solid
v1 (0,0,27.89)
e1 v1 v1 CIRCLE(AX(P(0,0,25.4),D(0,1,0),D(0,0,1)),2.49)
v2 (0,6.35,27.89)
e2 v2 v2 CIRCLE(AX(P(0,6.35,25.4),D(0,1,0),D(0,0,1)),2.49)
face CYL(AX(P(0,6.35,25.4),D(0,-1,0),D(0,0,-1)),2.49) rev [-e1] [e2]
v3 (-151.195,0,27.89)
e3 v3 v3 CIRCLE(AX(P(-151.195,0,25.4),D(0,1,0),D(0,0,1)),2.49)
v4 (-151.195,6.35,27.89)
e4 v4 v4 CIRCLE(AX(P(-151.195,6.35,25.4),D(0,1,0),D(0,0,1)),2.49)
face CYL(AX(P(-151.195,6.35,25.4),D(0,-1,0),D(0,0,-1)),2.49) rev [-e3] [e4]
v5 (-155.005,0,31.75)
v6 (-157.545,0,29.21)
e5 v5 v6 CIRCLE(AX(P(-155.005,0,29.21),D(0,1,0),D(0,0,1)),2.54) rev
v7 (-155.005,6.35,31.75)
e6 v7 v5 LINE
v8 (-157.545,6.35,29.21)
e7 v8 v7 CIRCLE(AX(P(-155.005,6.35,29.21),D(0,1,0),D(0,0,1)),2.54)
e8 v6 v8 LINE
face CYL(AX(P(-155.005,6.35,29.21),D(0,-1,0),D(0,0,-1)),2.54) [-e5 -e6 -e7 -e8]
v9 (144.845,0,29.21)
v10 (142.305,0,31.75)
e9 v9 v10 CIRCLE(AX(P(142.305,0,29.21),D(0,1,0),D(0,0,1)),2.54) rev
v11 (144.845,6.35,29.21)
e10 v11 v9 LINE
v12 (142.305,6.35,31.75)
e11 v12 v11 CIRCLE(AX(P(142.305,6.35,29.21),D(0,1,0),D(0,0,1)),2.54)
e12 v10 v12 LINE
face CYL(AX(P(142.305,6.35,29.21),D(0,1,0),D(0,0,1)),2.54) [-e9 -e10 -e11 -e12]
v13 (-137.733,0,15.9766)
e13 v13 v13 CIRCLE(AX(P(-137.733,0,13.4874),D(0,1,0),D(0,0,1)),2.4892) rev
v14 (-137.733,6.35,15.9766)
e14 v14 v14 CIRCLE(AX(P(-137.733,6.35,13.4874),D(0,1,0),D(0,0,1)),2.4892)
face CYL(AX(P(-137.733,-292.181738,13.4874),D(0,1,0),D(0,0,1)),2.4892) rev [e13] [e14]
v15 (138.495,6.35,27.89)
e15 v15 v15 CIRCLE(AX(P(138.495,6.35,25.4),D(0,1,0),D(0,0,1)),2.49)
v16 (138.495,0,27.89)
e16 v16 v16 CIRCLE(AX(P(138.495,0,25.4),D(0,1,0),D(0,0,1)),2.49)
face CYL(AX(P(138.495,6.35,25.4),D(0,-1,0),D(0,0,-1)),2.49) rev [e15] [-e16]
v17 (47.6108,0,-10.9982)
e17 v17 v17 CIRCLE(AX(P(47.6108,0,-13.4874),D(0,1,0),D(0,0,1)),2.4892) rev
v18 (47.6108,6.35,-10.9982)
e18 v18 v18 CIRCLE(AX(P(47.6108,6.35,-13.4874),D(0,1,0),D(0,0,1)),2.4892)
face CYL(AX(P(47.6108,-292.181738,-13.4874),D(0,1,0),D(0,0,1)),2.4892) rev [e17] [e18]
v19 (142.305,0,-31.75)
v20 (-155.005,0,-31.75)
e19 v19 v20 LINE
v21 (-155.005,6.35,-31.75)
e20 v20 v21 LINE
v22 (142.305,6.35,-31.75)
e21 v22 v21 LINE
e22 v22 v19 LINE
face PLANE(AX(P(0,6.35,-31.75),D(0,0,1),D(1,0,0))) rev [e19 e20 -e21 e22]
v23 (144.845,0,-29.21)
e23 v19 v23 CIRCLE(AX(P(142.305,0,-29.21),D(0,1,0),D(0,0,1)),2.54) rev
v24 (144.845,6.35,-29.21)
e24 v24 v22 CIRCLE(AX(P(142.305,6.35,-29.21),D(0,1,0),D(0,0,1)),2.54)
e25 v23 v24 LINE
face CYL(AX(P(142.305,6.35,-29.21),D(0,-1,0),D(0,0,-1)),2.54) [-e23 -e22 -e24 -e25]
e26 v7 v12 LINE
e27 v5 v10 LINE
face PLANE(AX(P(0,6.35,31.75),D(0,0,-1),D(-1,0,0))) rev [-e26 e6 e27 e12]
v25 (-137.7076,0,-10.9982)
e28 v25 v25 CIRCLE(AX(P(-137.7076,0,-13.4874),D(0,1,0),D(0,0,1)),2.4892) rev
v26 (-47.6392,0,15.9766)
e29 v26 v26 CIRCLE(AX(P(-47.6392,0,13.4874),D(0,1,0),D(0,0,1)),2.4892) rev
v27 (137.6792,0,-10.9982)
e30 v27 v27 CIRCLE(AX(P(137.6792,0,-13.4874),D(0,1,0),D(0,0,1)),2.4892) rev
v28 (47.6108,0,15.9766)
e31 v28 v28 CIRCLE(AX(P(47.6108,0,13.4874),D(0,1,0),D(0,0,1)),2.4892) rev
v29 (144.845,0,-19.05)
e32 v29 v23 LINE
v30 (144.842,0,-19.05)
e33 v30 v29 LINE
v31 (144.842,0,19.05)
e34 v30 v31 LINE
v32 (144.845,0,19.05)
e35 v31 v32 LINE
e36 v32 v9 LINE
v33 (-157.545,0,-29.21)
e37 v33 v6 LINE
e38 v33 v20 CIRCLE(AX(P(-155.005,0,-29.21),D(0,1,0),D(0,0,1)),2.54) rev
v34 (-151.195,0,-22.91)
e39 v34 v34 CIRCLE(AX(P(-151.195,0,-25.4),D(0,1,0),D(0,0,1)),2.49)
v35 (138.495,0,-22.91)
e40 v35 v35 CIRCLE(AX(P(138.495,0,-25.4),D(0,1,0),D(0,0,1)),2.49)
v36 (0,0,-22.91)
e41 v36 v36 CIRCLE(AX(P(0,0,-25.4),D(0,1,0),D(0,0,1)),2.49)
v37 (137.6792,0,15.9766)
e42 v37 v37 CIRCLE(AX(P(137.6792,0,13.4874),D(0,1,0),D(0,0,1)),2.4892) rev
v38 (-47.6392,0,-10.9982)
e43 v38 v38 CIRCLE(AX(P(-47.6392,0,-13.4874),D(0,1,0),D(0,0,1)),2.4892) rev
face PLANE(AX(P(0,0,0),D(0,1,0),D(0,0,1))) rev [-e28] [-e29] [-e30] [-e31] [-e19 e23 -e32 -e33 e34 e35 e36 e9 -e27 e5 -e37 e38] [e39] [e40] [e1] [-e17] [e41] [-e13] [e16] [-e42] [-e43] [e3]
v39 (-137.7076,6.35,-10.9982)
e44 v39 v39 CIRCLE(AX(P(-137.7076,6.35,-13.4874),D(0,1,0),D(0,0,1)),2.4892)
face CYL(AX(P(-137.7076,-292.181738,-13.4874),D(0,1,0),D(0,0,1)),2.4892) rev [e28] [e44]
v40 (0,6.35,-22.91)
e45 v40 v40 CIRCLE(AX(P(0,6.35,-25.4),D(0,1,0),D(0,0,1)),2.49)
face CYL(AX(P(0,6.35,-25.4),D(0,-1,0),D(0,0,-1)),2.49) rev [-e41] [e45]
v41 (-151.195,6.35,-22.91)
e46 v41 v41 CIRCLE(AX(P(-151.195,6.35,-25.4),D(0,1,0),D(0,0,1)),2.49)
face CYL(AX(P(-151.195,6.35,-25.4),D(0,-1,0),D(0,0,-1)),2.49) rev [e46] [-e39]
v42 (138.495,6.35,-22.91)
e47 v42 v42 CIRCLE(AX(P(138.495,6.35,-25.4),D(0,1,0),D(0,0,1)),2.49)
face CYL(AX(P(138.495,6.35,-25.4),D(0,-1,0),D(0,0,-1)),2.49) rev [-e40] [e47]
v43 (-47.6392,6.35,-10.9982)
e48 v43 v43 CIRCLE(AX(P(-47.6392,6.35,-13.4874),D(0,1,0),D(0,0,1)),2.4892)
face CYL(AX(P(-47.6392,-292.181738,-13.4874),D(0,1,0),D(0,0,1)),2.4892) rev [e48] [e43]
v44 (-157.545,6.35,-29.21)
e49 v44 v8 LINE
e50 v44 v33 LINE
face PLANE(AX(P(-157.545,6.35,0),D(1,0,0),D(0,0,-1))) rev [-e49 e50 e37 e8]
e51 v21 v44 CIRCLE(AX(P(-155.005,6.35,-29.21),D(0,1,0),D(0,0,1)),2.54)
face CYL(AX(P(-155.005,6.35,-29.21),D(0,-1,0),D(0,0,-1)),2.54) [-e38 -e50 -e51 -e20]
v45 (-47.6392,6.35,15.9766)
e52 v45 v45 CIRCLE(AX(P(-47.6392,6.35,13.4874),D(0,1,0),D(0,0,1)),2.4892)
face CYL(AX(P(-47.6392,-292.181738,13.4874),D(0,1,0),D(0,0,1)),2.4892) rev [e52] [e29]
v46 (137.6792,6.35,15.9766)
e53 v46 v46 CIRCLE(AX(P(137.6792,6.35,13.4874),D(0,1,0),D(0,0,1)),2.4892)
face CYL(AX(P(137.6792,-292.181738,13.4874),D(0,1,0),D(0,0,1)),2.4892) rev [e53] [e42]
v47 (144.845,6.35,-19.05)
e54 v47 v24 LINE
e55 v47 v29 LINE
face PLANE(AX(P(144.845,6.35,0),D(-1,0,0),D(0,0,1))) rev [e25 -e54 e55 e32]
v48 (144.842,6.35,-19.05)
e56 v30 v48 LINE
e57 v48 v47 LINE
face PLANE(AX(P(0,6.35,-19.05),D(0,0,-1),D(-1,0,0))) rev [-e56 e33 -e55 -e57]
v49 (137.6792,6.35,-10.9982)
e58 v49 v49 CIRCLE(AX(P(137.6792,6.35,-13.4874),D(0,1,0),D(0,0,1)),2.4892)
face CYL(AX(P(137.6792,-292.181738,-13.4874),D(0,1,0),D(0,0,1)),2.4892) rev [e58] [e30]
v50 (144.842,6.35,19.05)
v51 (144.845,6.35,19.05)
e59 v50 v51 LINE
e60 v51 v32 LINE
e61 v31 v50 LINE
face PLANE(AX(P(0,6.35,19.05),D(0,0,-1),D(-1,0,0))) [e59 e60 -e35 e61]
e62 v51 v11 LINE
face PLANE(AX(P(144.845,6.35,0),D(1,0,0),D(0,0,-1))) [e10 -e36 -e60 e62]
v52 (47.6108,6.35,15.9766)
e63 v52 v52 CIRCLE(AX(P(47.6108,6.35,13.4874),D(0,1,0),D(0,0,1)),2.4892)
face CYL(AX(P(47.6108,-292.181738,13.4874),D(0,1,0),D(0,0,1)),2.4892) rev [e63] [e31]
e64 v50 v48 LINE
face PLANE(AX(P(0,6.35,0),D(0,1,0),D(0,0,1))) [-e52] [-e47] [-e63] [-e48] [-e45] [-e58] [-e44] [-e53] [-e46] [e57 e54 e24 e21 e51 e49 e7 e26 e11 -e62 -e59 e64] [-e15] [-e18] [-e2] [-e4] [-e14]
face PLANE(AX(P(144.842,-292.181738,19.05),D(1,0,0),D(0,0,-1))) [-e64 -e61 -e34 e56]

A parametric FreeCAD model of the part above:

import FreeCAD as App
import Part
import Sketcher

V = App.Vector
Q = App.Units.Quantity


def edges_at(feature, points):
    """Names of the edges that pass closest to the given points."""
    edges = feature.Shape.Edges
    near = lambda p: min(range(len(edges)), key=lambda i: edges[i].distToShape(Part.Vertex(*p))[0])
    return sorted({f"Edge{near(p) + 1}" for p in points})

doc = App.newDocument("Part")
body = doc.addObject("PartDesign::Body", "Body")

# Sketch on XZ plane
sketch1 = body.newObject("Sketcher::SketchObject", "Sketch")
sketch1.AttachmentSupport = (doc.getObject("XZ_Plane"), [""])
sketch1.MapMode = "FlatFace"
sketch1.addGeometry(Part.LineSegment(V(144.845, 31.75, 0), V(144.845, 19.05, 0)), False)
sketch1.addGeometry(Part.LineSegment(V(144.845, 19.05, 0), V(-144.845, 19.05, 0)), False)
sketch1.addGeometry(Part.LineSegment(V(-144.845, 19.05, 0), V(-144.845, -19.05, 0)), False)
sketch1.addGeometry(Part.LineSegment(V(-144.845, -19.05, 0), V(144.845, -19.05, 0)), False)
sketch1.addGeometry(Part.LineSegment(V(144.845, -19.05, 0), V(144.845, -31.75, 0)), False)
sketch1.addGeometry(Part.LineSegment(V(144.845, -31.75, 0), V(-157.545, -31.75, 0)), False)
sketch1.addGeometry(Part.LineSegment(V(-157.545, -31.75, 0), V(-157.545, 31.75, 0)), False)
sketch1.addGeometry(Part.LineSegment(V(-157.545, 31.75, 0), V(144.845, 31.75, 0)), False)
sketch1.addGeometry(Part.Circle(V(0, 25.4, 0), V(0, 0, 1), 2.49), False)
sketch1.addGeometry(Part.Circle(V(138.495, 25.4, 0), V(0, 0, 1), 2.49), False)
sketch1.addGeometry(Part.Circle(V(-151.195, -25.4, 0), V(0, 0, 1), 2.49), False)
sketch1.addGeometry(Part.Circle(V(-151.195, 25.4, 0), V(0, 0, 1), 2.49), False)
sketch1.addGeometry(Part.Circle(V(138.495, -25.4, 0), V(0, 0, 1), 2.49), False)
sketch1.addGeometry(Part.Circle(V(0, -25.4, 0), V(0, 0, 1), 2.49), False)
sketch1.addConstraint(Sketcher.Constraint("Coincident", 0, 2, 1, 1))
sketch1.addConstraint(Sketcher.Constraint("Coincident", 1, 2, 2, 1))
sketch1.addConstraint(Sketcher.Constraint("Coincident", 2, 2, 3, 1))
sketch1.addConstraint(Sketcher.Constraint("Coincident", 3, 2, 4, 1))
sketch1.addConstraint(Sketcher.Constraint("Coincident", 4, 2, 5, 1))
sketch1.addConstraint(Sketcher.Constraint("Coincident", 5, 2, 6, 1))
sketch1.addConstraint(Sketcher.Constraint("Coincident", 6, 2, 7, 1))
sketch1.addConstraint(Sketcher.Constraint("Coincident", 7, 2, 0, 1))
sketch1.addConstraint(Sketcher.Constraint("Vertical", 0))
sketch1.addConstraint(Sketcher.Constraint("Horizontal", 1))
sketch1.addConstraint(Sketcher.Constraint("Vertical", 2))
sketch1.addConstraint(Sketcher.Constraint("Horizontal", 3))
sketch1.addConstraint(Sketcher.Constraint("Vertical", 4))
sketch1.addConstraint(Sketcher.Constraint("Horizontal", 5))
sketch1.addConstraint(Sketcher.Constraint("Vertical", 6))
sketch1.addConstraint(Sketcher.Constraint("Horizontal", 7))
sketch1.addConstraint(Sketcher.Constraint("Equal", 8, 9))
sketch1.addConstraint(Sketcher.Constraint("Equal", 9, 10))
sketch1.addConstraint(Sketcher.Constraint("Equal", 10, 11))
sketch1.addConstraint(Sketcher.Constraint("Equal", 11, 12))
sketch1.addConstraint(Sketcher.Constraint("Equal", 12, 13))
sketch1.addConstraint(Sketcher.Constraint("Symmetric", 8, 3, 13, 3, -1, 1))
sketch1.addConstraint(Sketcher.Constraint("Symmetric", 0, 2, 2, 2, -1, 1))
sketch1.addConstraint(Sketcher.Constraint("Symmetric", 10, 3, 11, 3, -1))
sketch1.addConstraint(Sketcher.Constraint("Symmetric", 9, 3, 12, 3, -1))
sketch1.addConstraint(Sketcher.Constraint("Symmetric", 4, 2, 7, 2, -1))
sketch1.addConstraint(Sketcher.Constraint("PointOnObject", 8, 3, -2))
sketch1.addConstraint(Sketcher.Constraint("Horizontal", 8, 3, 9, 3))
sketch1.addConstraint(Sketcher.Constraint("Horizontal", 9, 3, 11, 3))
sketch1.addConstraint(Sketcher.Constraint("DistanceY", 0, 2, 0, 1, Q("0.5 in")))
sketch1.addConstraint(Sketcher.Constraint("DistanceY", 2, 2, 2, 1, Q("1.5 in")))
sketch1.addConstraint(Sketcher.Constraint("DistanceY", -1, 1, 8, 3, Q("1 in")))
sketch1.addConstraint(Sketcher.Constraint("DistanceX", 5, 2, 2, 2, Q("0.5 in")))
sketch1.addConstraint(Sketcher.Constraint("Diameter", 8, 4.98))
sketch1.addConstraint(Sketcher.Constraint("DistanceX", 9, 3, 0, 2, Q("0.25 in")))
sketch1.addConstraint(Sketcher.Constraint("DistanceX", 11, 3, 1, 2, Q("0.25 in")))
sketch1.addConstraint(Sketcher.Constraint("DistanceX", 1, 2, 1, 1, 289.69))
pad1 = body.newObject("PartDesign::Pad", "Pad")
pad1.Profile = sketch1
pad1.Length = Q("0.25 in")
pad1.Reversed = True
doc.recompute()

fillet = body.newObject("PartDesign::Fillet", "Fillet")
fillet.Base = (pad1, edges_at(pad1, [
    (144.845, 3.175, 31.75),
    (-157.545, 3.175, 31.75),
    (-157.545, 3.175, -31.75),
    (144.845, 3.175, -31.75),
]))
fillet.Radius = Q("0.1 in")

# Sketch on XZ plane
sketch2 = body.newObject("Sketcher::SketchObject", "Sketch001")
sketch2.AttachmentSupport = (doc.getObject("XZ_Plane"), [""])
sketch2.MapMode = "FlatFace"
sketch2.AttachmentOffset = App.Placement(V(0, 0, -0.25 * 25.4), App.Rotation())
sketch2.addGeometry(Part.LineSegment(V(-144.845, -19.05, 0), V(-144.845, 19.05, 0)), False)
sketch2.addGeometry(Part.LineSegment(V(-144.845, 19.05, 0), V(144.842, 19.05, 0)), False)
sketch2.addGeometry(Part.LineSegment(V(144.842, 19.05, 0), V(144.842, -19.05, 0)), False)
sketch2.addGeometry(Part.LineSegment(V(144.842, -19.05, 0), V(-144.845, -19.05, 0)), False)
sketch2.addGeometry(Part.Circle(V(-137.733, 13.4874, 0), V(0, 0, 1), 2.4892), False)
sketch2.addGeometry(Part.Circle(V(-47.6392, 13.4874, 0), V(0, 0, 1), 2.4892), False)
sketch2.addGeometry(Part.Circle(V(47.6108, 13.4874, 0), V(0, 0, 1), 2.4892), False)
sketch2.addGeometry(Part.Circle(V(137.6792, 13.4874, 0), V(0, 0, 1), 2.4892), False)
sketch2.addGeometry(Part.Circle(V(-137.7076, -13.4874, 0), V(0, 0, 1), 2.4892), False)
sketch2.addGeometry(Part.Circle(V(-47.6392, -13.4874, 0), V(0, 0, 1), 2.4892), False)
sketch2.addGeometry(Part.Circle(V(47.6108, -13.4874, 0), V(0, 0, 1), 2.4892), False)
sketch2.addGeometry(Part.Circle(V(137.6792, -13.4874, 0), V(0, 0, 1), 2.4892), False)
sketch2.addConstraint(Sketcher.Constraint("Coincident", 0, 2, 1, 1))
sketch2.addConstraint(Sketcher.Constraint("Coincident", 1, 2, 2, 1))
sketch2.addConstraint(Sketcher.Constraint("Coincident", 2, 2, 3, 1))
sketch2.addConstraint(Sketcher.Constraint("Coincident", 3, 2, 0, 1))
sketch2.addConstraint(Sketcher.Constraint("Vertical", 0))
sketch2.addConstraint(Sketcher.Constraint("Horizontal", 1))
sketch2.addConstraint(Sketcher.Constraint("Vertical", 2))
sketch2.addConstraint(Sketcher.Constraint("Horizontal", 3))
sketch2.addConstraint(Sketcher.Constraint("Equal", 4, 5))
sketch2.addConstraint(Sketcher.Constraint("Equal", 5, 6))
sketch2.addConstraint(Sketcher.Constraint("Equal", 6, 7))
sketch2.addConstraint(Sketcher.Constraint("Equal", 7, 8))
sketch2.addConstraint(Sketcher.Constraint("Equal", 8, 9))
sketch2.addConstraint(Sketcher.Constraint("Equal", 9, 10))
sketch2.addConstraint(Sketcher.Constraint("Equal", 10, 11))
sketch2.addConstraint(Sketcher.Constraint("Symmetric", 5, 3, 9, 3, -1))
sketch2.addConstraint(Sketcher.Constraint("Symmetric", 6, 3, 10, 3, -1))
sketch2.addConstraint(Sketcher.Constraint("Symmetric", 7, 3, 11, 3, -1))
sketch2.addConstraint(Sketcher.Constraint("Horizontal", 4, 3, 5, 3))
sketch2.addConstraint(Sketcher.Constraint("Horizontal", 5, 3, 6, 3))
sketch2.addConstraint(Sketcher.Constraint("Horizontal", 6, 3, 7, 3))
sketch2.addConstraint(Sketcher.Constraint("Horizontal", 8, 3, 9, 3))
sketch2.addConstraint(Sketcher.Constraint("Diameter", 4, Q("0.196 in")))
sketch2.addConstraint(Sketcher.Constraint("DistanceY", 0, 1, 0, 2, Q("1.5 in")))
sketch2.addConstraint(Sketcher.Constraint("DistanceX", 1, 1, 1, 2, Q("11.405 in")))
sketch2.addConstraint(Sketcher.Constraint("DistanceY", -1, 1, 0, 2, Q("0.75 in")))
sketch2.addConstraint(Sketcher.Constraint("DistanceX", 5, 3, 6, 3, Q("3.75 in")))
sketch2.addConstraint(Sketcher.Constraint("DistanceX", 0, 2, 4, 3, Q("0.28 in")))
sketch2.addConstraint(Sketcher.Constraint("DistanceY", -1, 1, 4, 3, Q("0.531 in")))
sketch2.addConstraint(Sketcher.Constraint("DistanceX", 4, 3, 5, 3, Q("3.547 in")))
sketch2.addConstraint(Sketcher.Constraint("DistanceX", 6, 3, 7, 3, Q("3.546 in")))
sketch2.addConstraint(Sketcher.Constraint("DistanceX", 4, 3, 8, 3, Q("0.001 in")))
sketch2.addConstraint(Sketcher.Constraint("DistanceX", 4, 3, -1, 1, 137.733))
pad2 = body.newObject("PartDesign::Pad", "Pad001")
pad2.Profile = sketch2
pad2.Length = Q("0.25 in")

doc.recompute()
